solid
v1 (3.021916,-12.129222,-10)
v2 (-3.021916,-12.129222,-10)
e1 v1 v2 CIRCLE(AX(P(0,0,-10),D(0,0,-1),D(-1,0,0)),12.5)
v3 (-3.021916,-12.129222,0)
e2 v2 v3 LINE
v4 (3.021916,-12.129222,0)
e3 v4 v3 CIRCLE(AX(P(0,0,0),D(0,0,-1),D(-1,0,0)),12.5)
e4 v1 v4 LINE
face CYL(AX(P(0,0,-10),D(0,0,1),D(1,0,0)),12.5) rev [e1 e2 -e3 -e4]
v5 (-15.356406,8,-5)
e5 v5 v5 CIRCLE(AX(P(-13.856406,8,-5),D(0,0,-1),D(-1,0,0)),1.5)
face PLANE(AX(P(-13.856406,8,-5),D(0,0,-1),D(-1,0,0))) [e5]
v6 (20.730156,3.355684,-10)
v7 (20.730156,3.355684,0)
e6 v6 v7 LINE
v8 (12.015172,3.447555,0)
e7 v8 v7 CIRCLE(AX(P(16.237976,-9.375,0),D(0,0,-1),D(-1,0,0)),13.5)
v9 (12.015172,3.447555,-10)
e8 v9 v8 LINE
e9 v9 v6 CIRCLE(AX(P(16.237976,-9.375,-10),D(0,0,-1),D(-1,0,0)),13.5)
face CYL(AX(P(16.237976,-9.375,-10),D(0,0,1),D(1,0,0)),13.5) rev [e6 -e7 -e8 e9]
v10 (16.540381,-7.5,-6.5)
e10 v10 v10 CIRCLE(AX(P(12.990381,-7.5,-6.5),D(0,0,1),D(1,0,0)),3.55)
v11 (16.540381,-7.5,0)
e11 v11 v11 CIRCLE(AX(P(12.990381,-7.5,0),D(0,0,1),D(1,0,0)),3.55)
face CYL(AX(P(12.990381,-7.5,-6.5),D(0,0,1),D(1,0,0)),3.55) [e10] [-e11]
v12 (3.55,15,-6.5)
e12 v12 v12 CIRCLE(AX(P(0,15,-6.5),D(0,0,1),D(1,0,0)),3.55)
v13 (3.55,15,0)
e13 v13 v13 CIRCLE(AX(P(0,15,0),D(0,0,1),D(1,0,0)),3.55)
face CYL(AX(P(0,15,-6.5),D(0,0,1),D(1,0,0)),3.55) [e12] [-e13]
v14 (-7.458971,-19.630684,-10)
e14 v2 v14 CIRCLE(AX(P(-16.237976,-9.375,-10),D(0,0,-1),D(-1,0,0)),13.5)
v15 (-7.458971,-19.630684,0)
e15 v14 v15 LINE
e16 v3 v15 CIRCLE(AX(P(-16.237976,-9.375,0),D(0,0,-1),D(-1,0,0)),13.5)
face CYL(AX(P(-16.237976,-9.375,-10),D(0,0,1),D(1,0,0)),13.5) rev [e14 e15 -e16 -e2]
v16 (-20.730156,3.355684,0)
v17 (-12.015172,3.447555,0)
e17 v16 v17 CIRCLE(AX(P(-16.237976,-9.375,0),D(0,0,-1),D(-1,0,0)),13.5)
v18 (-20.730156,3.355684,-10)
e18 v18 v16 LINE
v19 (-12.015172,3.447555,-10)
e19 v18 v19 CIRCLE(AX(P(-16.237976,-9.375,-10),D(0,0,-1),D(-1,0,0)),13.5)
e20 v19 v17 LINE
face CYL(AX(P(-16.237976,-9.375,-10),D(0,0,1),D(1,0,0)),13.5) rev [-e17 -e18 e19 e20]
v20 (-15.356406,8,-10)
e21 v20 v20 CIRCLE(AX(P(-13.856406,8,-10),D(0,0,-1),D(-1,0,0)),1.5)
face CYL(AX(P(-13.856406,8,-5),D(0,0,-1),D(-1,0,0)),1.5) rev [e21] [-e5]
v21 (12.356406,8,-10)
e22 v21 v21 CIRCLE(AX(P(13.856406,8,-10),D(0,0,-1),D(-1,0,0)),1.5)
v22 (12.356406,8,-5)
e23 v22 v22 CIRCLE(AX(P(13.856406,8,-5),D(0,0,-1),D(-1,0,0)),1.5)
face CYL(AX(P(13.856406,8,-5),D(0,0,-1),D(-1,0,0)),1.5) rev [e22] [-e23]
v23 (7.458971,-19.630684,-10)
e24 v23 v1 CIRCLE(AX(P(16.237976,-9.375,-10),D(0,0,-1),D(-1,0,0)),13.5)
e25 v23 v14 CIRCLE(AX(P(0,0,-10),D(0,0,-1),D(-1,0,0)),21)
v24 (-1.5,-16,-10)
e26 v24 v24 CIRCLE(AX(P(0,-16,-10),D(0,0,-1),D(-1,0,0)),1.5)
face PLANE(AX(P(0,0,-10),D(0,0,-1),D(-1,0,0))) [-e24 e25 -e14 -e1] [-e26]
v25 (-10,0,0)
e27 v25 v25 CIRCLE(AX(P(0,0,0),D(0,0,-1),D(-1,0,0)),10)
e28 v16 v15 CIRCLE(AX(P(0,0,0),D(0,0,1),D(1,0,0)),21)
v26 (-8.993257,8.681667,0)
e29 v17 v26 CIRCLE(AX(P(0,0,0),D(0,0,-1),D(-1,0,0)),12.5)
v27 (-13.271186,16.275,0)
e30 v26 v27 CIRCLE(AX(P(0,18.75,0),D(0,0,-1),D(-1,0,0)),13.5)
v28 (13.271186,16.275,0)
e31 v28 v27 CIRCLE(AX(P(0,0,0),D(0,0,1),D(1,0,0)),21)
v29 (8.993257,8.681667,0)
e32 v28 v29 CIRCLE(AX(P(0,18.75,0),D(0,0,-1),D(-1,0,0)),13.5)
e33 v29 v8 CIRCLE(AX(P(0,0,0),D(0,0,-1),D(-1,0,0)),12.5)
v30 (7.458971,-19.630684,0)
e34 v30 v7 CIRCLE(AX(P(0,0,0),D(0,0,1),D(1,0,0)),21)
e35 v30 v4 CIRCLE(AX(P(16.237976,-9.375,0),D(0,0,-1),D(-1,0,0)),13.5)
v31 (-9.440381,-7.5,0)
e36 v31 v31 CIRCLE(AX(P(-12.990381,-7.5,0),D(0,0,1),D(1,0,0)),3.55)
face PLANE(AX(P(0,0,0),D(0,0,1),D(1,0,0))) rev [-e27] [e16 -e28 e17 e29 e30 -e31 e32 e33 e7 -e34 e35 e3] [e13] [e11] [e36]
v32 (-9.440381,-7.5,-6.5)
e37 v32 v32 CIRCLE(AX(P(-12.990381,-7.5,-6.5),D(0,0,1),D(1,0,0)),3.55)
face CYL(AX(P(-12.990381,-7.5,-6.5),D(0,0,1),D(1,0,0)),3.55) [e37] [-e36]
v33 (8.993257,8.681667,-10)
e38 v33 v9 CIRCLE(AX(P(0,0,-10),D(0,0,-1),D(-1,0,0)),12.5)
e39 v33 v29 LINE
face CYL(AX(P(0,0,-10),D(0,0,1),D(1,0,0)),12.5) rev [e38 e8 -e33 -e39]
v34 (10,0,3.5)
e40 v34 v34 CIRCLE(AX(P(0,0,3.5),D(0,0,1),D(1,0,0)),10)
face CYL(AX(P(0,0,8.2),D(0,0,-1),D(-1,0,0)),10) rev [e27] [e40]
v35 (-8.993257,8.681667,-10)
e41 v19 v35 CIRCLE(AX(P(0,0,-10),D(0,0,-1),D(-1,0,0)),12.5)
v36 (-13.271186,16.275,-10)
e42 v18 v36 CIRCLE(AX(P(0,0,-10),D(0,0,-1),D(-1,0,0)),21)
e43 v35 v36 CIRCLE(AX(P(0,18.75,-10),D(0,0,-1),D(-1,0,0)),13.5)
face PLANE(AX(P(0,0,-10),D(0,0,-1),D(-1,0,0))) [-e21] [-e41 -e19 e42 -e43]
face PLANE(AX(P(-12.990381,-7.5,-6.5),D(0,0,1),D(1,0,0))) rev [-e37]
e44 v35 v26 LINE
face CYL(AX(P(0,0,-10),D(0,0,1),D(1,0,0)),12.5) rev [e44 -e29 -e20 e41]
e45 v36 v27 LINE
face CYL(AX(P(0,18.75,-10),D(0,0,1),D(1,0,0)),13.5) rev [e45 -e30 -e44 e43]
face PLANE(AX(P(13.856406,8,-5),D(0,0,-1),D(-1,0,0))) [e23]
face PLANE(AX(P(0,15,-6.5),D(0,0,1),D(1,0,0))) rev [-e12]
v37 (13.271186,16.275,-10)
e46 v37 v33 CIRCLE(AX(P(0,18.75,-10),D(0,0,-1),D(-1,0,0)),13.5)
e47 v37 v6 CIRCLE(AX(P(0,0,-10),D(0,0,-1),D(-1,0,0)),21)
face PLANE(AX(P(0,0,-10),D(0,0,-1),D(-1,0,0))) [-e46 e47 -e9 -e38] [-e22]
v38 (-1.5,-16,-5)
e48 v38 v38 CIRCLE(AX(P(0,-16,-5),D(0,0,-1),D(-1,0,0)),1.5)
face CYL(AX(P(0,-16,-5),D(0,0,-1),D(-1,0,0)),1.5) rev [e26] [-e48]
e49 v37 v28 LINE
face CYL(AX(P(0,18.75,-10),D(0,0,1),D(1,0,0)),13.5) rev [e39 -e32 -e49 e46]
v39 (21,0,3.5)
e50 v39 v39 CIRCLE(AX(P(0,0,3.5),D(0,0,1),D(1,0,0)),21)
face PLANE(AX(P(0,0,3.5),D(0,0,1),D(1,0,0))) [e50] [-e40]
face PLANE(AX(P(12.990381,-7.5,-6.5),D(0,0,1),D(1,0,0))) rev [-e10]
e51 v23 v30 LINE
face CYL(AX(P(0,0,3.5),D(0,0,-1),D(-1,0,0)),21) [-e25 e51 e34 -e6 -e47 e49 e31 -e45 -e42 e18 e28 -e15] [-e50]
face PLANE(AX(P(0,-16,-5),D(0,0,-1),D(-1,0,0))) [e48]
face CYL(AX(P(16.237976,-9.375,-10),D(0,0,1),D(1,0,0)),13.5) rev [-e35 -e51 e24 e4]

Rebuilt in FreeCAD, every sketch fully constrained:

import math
import FreeCAD as App
import Part
import Sketcher

doc = App.newDocument("Part")
body = doc.addObject("PartDesign::Body", "Body")

sketch1 = body.newObject("Sketcher::SketchObject", "Sketch")
sketch1.AttachmentSupport = (doc.getObject("XY_Plane"), [""])
sketch1.MapMode = "FlatFace"
sketch1.addGeometry(Part.Circle(App.Vector(0, 0, 0), App.Vector(0, 0, 1), 21), False)
sketch1.addConstraint([
    Sketcher.Constraint("Coincident", 0, 3, -1, 1),
    Sketcher.Constraint("Diameter", 0, 42.0),
])
pad1 = body.newObject("PartDesign::Pad", "Pad")
pad1.Profile = sketch1
pad1.Length = 3.5

sketch2 = body.newObject("Sketcher::SketchObject", "Sketch001")
sketch2.AttachmentSupport = (doc.getObject("XY_Plane"), [""])
sketch2.MapMode = "FlatFace"
sketch2.addGeometry(Part.Circle(App.Vector(0, 0, 0), App.Vector(0, 0, 1), 10), False)
sketch2.addConstraint([
    Sketcher.Constraint("Coincident", 0, 3, -1, 1),
    Sketcher.Constraint("Diameter", 0, 20.0),
])
pocket1 = body.newObject("PartDesign::Pocket", "Pocket")
pocket1.Profile = sketch2
pocket1.Length = 8.2
pocket1.Reversed = True

sketch3 = body.newObject("Sketcher::SketchObject", "Sketch002")
sketch3.AttachmentSupport = (doc.getObject("XY_Plane"), [""])
sketch3.MapMode = "FlatFace"
sketch3.addGeometry([
    Part.Circle(App.Vector(0, 15, 0), App.Vector(0, 0, 1), 1.5),
    Part.Circle(App.Vector(-13, -7.5, 0), App.Vector(0, 0, 1), 1.5),
    Part.Circle(App.Vector(13, -7.5, 0), App.Vector(0, 0, 1), 1.5),
], False)
sketch3.addConstraint([
    Sketcher.Constraint("Equal", 0, 1),
    Sketcher.Constraint("Equal", 1, 2),
    Sketcher.Constraint("Symmetric", 1, 3, 2, 3, -2),
    Sketcher.Constraint("PointOnObject", 0, 3, -2),
    Sketcher.Constraint("Diameter", 0, 3.0),
    Sketcher.Constraint("DistanceY", -1, 1, 0, 3, 15.0),
    Sketcher.Constraint("DistanceY", 1, 3, -1, 1, 7.5),
    Sketcher.Constraint("DistanceX", 1, 3, -1, 1, 12.990381),
])
pocket2 = body.newObject("PartDesign::Pocket", "Pocket001")
pocket2.Profile = sketch3
pocket2.Length = 10
pocket2.Reversed = True

sketch4 = body.newObject("Sketcher::SketchObject", "Sketch003")
sketch4.AttachmentSupport = (doc.getObject("XY_Plane"), [""])
sketch4.MapMode = "FlatFace"
sketch4.AttachmentOffset = App.Placement(App.Vector(0, 0, -10), App.Rotation())
sketch4.addGeometry([
    Part.ArcOfCircle(Part.Circle(App.Vector(16, -9, 0), App.Vector(0, 0, 1), 13), math.radians(-168), math.radians(-131)),
    Part.ArcOfCircle(Part.Circle(App.Vector(0, 0, 0), App.Vector(0, 0, 1), 21), math.radians(-111), math.radians(-69)),
    Part.ArcOfCircle(Part.Circle(App.Vector(-16, -9, 0), App.Vector(0, 0, 1), 13), math.radians(-49), math.radians(-12)),
    Part.ArcOfCircle(Part.Circle(App.Vector(0, 0, 0), App.Vector(0, 0, 1), 12), math.radians(-104), math.radians(-76)),
    Part.ArcOfCircle(Part.Circle(App.Vector(16, -9, 0), App.Vector(0, 0, 1), 13), math.radians(71), math.radians(108)),
    Part.ArcOfCircle(Part.Circle(App.Vector(0, 0, 0), App.Vector(0, 0, 1), 13), math.radians(16), math.radians(44)),
    Part.ArcOfCircle(Part.Circle(App.Vector(0, 19, 0), App.Vector(0, 0, 1), 14), math.radians(-48), math.radians(-11)),
    Part.ArcOfCircle(Part.Circle(App.Vector(0, 0, 0), App.Vector(0, 0, 1), 21), math.radians(9), math.radians(51)),
    Part.ArcOfCircle(Part.Circle(App.Vector(0, 0, 0), App.Vector(0, 0, 1), 13), math.radians(136), math.radians(164)),
    Part.ArcOfCircle(Part.Circle(App.Vector(-16, -9, 0), App.Vector(0, 0, 1), 13), math.radians(72), math.radians(109)),
    Part.ArcOfCircle(Part.Circle(App.Vector(0, 0, 0), App.Vector(0, 0, 1), 21), math.radians(129), math.radians(171)),
    Part.ArcOfCircle(Part.Circle(App.Vector(0, 19, 0), App.Vector(0, 0, 1), 14), math.radians(-169), math.radians(-132)),
], False)
sketch4.addConstraint([
    Sketcher.Constraint("Coincident", 0, 2, 1, 2),
    Sketcher.Constraint("Coincident", 1, 1, 2, 1),
    Sketcher.Constraint("Coincident", 2, 2, 3, 1),
    Sketcher.Constraint("Coincident", 3, 2, 0, 1),
    Sketcher.Constraint("Coincident", 4, 2, 5, 1),
    Sketcher.Constraint("Coincident", 5, 2, 6, 1),
    Sketcher.Constraint("Coincident", 6, 2, 7, 2),
    Sketcher.Constraint("Coincident", 7, 1, 4, 1),
    Sketcher.Constraint("Coincident", 8, 2, 9, 1),
    Sketcher.Constraint("Coincident", 9, 2, 10, 2),
    Sketcher.Constraint("Coincident", 10, 1, 11, 1),
    Sketcher.Constraint("Coincident", 11, 2, 8, 1),
    Sketcher.Constraint("Coincident", 1, 3, -1, 1),
    Sketcher.Constraint("Coincident", 3, 3, -1, 1),
    Sketcher.Constraint("Coincident", 5, 3, -1, 1),
    Sketcher.Constraint("Coincident", 7, 3, -1, 1),
    Sketcher.Constraint("Coincident", 8, 3, -1, 1),
    Sketcher.Constraint("Coincident", 10, 3, -1, 1),
    Sketcher.Constraint("Coincident", 4, 3, 0, 3),
    Sketcher.Constraint("Coincident", 9, 3, 2, 3),
    Sketcher.Constraint("Coincident", 11, 3, 6, 3),
    Sketcher.Constraint("Equal", 0, 2),
    Sketcher.Constraint("Equal", 2, 4),
    Sketcher.Constraint("Equal", 3, 5),
    Sketcher.Constraint("Equal", 4, 6),
    Sketcher.Constraint("Equal", 1, 7),
    Sketcher.Constraint("Equal", 5, 8),
    Sketcher.Constraint("Equal", 6, 9),
    Sketcher.Constraint("Equal", 7, 10),
    Sketcher.Constraint("Equal", 9, 11),
    Sketcher.Constraint("Symmetric", 0, 3, 2, 3, -2),
    Sketcher.Constraint("PointOnObject", 6, 3, -2),
    Sketcher.Constraint("Radius", 1, 21.0),
    Sketcher.Constraint("Radius", 0, 13.5),
    Sketcher.Constraint("Radius", 3, 12.5),
    Sketcher.Constraint("DistanceY", -1, 1, 6, 3, 18.75),
    Sketcher.Constraint("DistanceY", 0, 3, -1, 1, 9.375),
    Sketcher.Constraint("DistanceX", 5, 2, 7, 1, 11.7369),
])
pad2 = body.newObject("PartDesign::Pad", "Pad001")
pad2.Profile = sketch4
pad2.Length = 10

sketch5 = body.newObject("Sketcher::SketchObject", "Sketch004")
sketch5.AttachmentSupport = (doc.getObject("XY_Plane"), [""])
sketch5.MapMode = "FlatFace"
sketch5.AttachmentOffset = App.Placement(App.Vector(0, 0, -10), App.Rotation())
sketch5.addGeometry([
    Part.Circle(App.Vector(-13.9, 8, 0), App.Vector(0, 0, 1), 1.5),
    Part.Circle(App.Vector(0, -16, 0), App.Vector(0, 0, 1), 1.5),
    Part.Circle(App.Vector(13.9, 8, 0), App.Vector(0, 0, 1), 1.5),
], False)
sketch5.addConstraint([
    Sketcher.Constraint("Equal", 0, 1),
    Sketcher.Constraint("Equal", 1, 2),
    Sketcher.Constraint("Symmetric", 0, 3, 2, 3, -2),
    Sketcher.Constraint("PointOnObject", 1, 3, -2),
    Sketcher.Constraint("Diameter", 0, 3.0),
    Sketcher.Constraint("DistanceY", -1, 1, 0, 3, 8.0),
    Sketcher.Constraint("DistanceY", 1, 3, -1, 1, 16.0),
    Sketcher.Constraint("DistanceX", 0, 3, -1, 1, 13.856406),
])
pocket3 = body.newObject("PartDesign::Pocket", "Pocket002")
pocket3.Profile = sketch5
pocket3.Length = 5
pocket3.Reversed = True

sketch6 = body.newObject("Sketcher::SketchObject", "Sketch005")
sketch6.AttachmentSupport = (doc.getObject("XY_Plane"), [""])
sketch6.MapMode = "FlatFace"
sketch6.AttachmentOffset = App.Placement(App.Vector(0, 0, 3.5), App.Rotation())
sketch6.addGeometry([
    Part.Circle(App.Vector(0, 15, 0), App.Vector(0, 0, 1), 3.5),
    Part.Circle(App.Vector(13, -7.5, 0), App.Vector(0, 0, 1), 3.5),
    Part.Circle(App.Vector(-13, -7.5, 0), App.Vector(0, 0, 1), 3.5),
], False)
sketch6.addConstraint([
    Sketcher.Constraint("Equal", 0, 1),
    Sketcher.Constraint("Equal", 1, 2),
    Sketcher.Constraint("Symmetric", 1, 3, 2, 3, -2),
    Sketcher.Constraint("PointOnObject", 0, 3, -2),
    Sketcher.Constraint("Diameter", 0, 7.1),
    Sketcher.Constraint("DistanceY", -1, 1, 0, 3, 15.0),
    Sketcher.Constraint("DistanceY", 1, 3, -1, 1, 7.5),
    Sketcher.Constraint("DistanceX", -1, 1, 1, 3, 12.990381),
])
pad3 = body.newObject("PartDesign::Pad", "Pad002")
pad3.Profile = sketch6
pad3.Length = 10
pad3.Reversed = True

doc.recompute()
